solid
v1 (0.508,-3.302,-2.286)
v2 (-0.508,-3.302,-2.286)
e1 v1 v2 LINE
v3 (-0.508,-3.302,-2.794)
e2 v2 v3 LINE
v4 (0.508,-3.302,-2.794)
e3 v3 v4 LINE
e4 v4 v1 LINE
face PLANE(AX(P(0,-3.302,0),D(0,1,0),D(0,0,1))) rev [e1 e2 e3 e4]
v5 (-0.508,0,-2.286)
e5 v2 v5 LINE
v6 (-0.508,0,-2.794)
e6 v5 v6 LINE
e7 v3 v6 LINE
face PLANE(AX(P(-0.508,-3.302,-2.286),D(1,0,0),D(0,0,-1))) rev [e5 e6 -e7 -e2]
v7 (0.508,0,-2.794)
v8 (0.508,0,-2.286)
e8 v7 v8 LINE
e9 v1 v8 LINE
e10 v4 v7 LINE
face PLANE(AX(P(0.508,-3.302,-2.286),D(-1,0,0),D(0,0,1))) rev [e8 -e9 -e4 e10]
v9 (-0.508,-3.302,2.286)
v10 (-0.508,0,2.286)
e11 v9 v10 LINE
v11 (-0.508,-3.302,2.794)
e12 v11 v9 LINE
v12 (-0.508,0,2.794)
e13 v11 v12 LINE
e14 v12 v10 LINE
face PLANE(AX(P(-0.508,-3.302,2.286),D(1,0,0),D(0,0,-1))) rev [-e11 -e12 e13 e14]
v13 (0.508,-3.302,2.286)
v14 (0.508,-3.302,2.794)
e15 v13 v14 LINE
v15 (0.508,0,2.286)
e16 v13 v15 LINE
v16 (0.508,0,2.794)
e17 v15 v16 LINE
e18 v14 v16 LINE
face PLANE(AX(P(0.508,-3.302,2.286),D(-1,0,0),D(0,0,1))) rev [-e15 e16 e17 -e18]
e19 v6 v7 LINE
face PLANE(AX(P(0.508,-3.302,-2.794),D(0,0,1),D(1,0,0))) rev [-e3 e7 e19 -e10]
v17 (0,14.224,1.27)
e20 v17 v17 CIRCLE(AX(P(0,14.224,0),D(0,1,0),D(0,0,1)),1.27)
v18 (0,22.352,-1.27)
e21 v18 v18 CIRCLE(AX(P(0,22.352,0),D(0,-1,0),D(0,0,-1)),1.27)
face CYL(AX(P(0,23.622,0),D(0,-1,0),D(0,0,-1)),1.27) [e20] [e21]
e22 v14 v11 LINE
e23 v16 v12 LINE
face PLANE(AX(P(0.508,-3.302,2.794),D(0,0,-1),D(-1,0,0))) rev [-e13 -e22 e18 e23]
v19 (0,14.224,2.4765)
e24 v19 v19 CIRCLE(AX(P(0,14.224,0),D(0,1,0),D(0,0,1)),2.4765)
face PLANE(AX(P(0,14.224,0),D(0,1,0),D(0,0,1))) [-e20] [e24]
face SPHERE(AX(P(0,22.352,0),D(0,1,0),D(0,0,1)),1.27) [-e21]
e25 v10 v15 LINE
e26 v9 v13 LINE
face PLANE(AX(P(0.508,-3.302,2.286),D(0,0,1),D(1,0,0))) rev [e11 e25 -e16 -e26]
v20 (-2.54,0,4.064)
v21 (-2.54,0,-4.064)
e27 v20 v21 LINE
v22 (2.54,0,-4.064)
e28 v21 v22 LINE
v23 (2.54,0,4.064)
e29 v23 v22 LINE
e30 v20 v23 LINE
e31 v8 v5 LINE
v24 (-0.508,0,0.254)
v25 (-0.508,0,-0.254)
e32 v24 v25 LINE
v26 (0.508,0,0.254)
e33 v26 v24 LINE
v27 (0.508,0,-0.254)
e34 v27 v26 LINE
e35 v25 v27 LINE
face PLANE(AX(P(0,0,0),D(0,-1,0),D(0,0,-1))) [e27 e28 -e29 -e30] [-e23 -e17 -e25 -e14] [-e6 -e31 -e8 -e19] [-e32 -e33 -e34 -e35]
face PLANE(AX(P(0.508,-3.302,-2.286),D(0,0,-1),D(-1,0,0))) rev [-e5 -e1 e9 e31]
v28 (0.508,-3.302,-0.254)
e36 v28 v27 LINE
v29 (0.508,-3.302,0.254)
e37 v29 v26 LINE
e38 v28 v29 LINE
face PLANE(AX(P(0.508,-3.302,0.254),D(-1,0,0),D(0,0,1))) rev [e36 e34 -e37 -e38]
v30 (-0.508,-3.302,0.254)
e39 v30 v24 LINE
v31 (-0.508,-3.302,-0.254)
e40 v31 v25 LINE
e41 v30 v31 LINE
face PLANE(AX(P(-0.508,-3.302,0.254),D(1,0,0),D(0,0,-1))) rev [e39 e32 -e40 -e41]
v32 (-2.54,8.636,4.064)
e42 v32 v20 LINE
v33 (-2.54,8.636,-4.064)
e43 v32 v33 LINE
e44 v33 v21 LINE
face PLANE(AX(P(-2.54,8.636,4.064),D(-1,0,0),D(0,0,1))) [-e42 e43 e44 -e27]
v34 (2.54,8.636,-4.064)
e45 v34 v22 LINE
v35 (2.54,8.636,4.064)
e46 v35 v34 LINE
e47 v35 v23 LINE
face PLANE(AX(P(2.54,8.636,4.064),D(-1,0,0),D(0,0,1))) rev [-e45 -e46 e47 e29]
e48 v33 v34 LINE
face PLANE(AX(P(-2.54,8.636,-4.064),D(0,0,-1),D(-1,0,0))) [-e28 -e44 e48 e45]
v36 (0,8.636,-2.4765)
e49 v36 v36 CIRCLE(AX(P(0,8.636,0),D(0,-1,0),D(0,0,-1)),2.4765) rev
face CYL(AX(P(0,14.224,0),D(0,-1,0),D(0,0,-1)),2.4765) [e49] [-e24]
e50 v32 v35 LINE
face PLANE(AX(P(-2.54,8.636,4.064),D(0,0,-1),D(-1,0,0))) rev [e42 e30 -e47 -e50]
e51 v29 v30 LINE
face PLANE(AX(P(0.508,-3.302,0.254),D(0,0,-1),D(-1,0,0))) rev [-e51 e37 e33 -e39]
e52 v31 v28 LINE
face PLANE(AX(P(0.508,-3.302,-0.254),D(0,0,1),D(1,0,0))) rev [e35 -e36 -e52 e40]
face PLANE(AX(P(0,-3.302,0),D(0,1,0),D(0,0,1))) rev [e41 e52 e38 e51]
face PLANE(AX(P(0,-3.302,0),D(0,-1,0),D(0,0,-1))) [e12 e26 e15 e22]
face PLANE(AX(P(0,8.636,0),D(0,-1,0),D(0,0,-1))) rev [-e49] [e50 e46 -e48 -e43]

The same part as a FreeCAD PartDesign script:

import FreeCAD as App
import Part
import Sketcher
from FreeCAD import Vector
Q = App.Units.Quantity


def edges_at(feature, points):
    """Names of the edges that pass closest to the given points."""
    edges = feature.Shape.Edges
    near = lambda p: min(range(len(edges)), key=lambda i: edges[i].distToShape(Part.Vertex(*p))[0])
    return sorted({f"Edge{near(p) + 1}" for p in points})

doc = App.newDocument("Part")
body = doc.addObject("PartDesign::Body", "Body")

sketch1 = doc.addObject("Sketcher::SketchObject", "Sketch")
body.addObject(sketch1)
sketch1.AttachmentSupport = (doc.XZ_Plane, [""])
sketch1.MapMode = "FlatFace"
sketch1.addGeometry(Part.LineSegment(Vector(-3, -4, 0), Vector(-3, 4, 0)), False)
sketch1.addGeometry(Part.LineSegment(Vector(-3, 4, 0), Vector(3, 4, 0)), False)
sketch1.addGeometry(Part.LineSegment(Vector(3, 4, 0), Vector(3, -4, 0)), False)
sketch1.addGeometry(Part.LineSegment(Vector(3, -4, 0), Vector(-3, -4, 0)), False)
sketch1.addConstraint(Sketcher.Constraint("Coincident", 0, 2, 1, 1))
sketch1.addConstraint(Sketcher.Constraint("Coincident", 1, 2, 2, 1))
sketch1.addConstraint(Sketcher.Constraint("Coincident", 2, 2, 3, 1))
sketch1.addConstraint(Sketcher.Constraint("Coincident", 3, 2, 0, 1))
sketch1.addConstraint(Sketcher.Constraint("Vertical", 0))
sketch1.addConstraint(Sketcher.Constraint("Horizontal", 1))
sketch1.addConstraint(Sketcher.Constraint("Vertical", 2))
sketch1.addConstraint(Sketcher.Constraint("Horizontal", 3))
sketch1.addConstraint(Sketcher.Constraint("Symmetric", 0, 2, 2, 2, -1, 1))
sketch1.addConstraint(Sketcher.Constraint("DistanceX", 1, 1, 1, 2, Q("0.2 in")))
sketch1.addConstraint(Sketcher.Constraint("DistanceY", 0, 1, 0, 2, Q("0.32 in")))
pad1 = doc.addObject("PartDesign::Pad", "Pad")
body.addObject(pad1)
pad1.Profile = sketch1
pad1.Length = Q("0.34 in")
pad1.Reversed = True

sketch2 = doc.addObject("Sketcher::SketchObject", "Sketch001")
body.addObject(sketch2)
sketch2.AttachmentSupport = (doc.XZ_Plane, [""])
sketch2.MapMode = "FlatFace"
sketch2.AttachmentOffset = App.Placement(Vector(0, 0, -0.34 * 25.4), App.Rotation())
sketch2.addGeometry(Part.Circle(Vector(0, 0, 0), Vector(0, 0, 1), 2.5), False)
sketch2.addConstraint(Sketcher.Constraint("Coincident", 0, 3, -1, 1))
sketch2.addConstraint(Sketcher.Constraint("Diameter", 0, Q("0.195 in")))
pad2 = doc.addObject("PartDesign::Pad", "Pad001")
body.addObject(pad2)
pad2.Profile = sketch2
pad2.Length = Q("0.22 in")
pad2.Reversed = True

sketch3 = doc.addObject("Sketcher::SketchObject", "Sketch002")
body.addObject(sketch3)
sketch3.AttachmentSupport = (doc.XZ_Plane, [""])
sketch3.MapMode = "FlatFace"
sketch3.addGeometry(Part.LineSegment(Vector(-0.5, 0.3, 0), Vector(-0.5, -0.3, 0)), False)
sketch3.addGeometry(Part.LineSegment(Vector(-0.5, -0.3, 0), Vector(0.5, -0.3, 0)), False)
sketch3.addGeometry(Part.LineSegment(Vector(0.5, -0.3, 0), Vector(0.5, 0.3, 0)), False)
sketch3.addGeometry(Part.LineSegment(Vector(0.5, 0.3, 0), Vector(-0.5, 0.3, 0)), False)
sketch3.addGeometry(Part.LineSegment(Vector(-0.5, -2.3, 0), Vector(-0.5, -2.8, 0)), False)
sketch3.addGeometry(Part.LineSegment(Vector(-0.5, -2.8, 0), Vector(0.5, -2.8, 0)), False)
sketch3.addGeometry(Part.LineSegment(Vector(0.5, -2.8, 0), Vector(0.5, -2.3, 0)), False)
sketch3.addGeometry(Part.LineSegment(Vector(0.5, -2.3, 0), Vector(-0.5, -2.3, 0)), False)
sketch3.addGeometry(Part.LineSegment(Vector(-0.5, 2.8, 0), Vector(-0.5, 2.3, 0)), False)
sketch3.addGeometry(Part.LineSegment(Vector(-0.5, 2.3, 0), Vector(0.5, 2.3, 0)), False)
sketch3.addGeometry(Part.LineSegment(Vector(0.5, 2.3, 0), Vector(0.5, 2.8, 0)), False)
sketch3.addGeometry(Part.LineSegment(Vector(0.5, 2.8, 0), Vector(-0.5, 2.8, 0)), False)
sketch3.addConstraint(Sketcher.Constraint("Coincident", 0, 2, 1, 1))
sketch3.addConstraint(Sketcher.Constraint("Coincident", 1, 2, 2, 1))
sketch3.addConstraint(Sketcher.Constraint("Coincident", 2, 2, 3, 1))
sketch3.addConstraint(Sketcher.Constraint("Coincident", 3, 2, 0, 1))
sketch3.addConstraint(Sketcher.Constraint("Coincident", 4, 2, 5, 1))
sketch3.addConstraint(Sketcher.Constraint("Coincident", 5, 2, 6, 1))
sketch3.addConstraint(Sketcher.Constraint("Coincident", 6, 2, 7, 1))
sketch3.addConstraint(Sketcher.Constraint("Coincident", 7, 2, 4, 1))
sketch3.addConstraint(Sketcher.Constraint("Coincident", 8, 2, 9, 1))
sketch3.addConstraint(Sketcher.Constraint("Coincident", 9, 2, 10, 1))
sketch3.addConstraint(Sketcher.Constraint("Coincident", 10, 2, 11, 1))
sketch3.addConstraint(Sketcher.Constraint("Coincident", 11, 2, 8, 1))
sketch3.addConstraint(Sketcher.Constraint("Vertical", 0))
sketch3.addConstraint(Sketcher.Constraint("Horizontal", 1))
sketch3.addConstraint(Sketcher.Constraint("Vertical", 2))
sketch3.addConstraint(Sketcher.Constraint("Horizontal", 3))
sketch3.addConstraint(Sketcher.Constraint("Vertical", 4))
sketch3.addConstraint(Sketcher.Constraint("Horizontal", 5))
sketch3.addConstraint(Sketcher.Constraint("Vertical", 6))
sketch3.addConstraint(Sketcher.Constraint("Horizontal", 7))
sketch3.addConstraint(Sketcher.Constraint("Vertical", 8))
sketch3.addConstraint(Sketcher.Constraint("Horizontal", 9))
sketch3.addConstraint(Sketcher.Constraint("Vertical", 10))
sketch3.addConstraint(Sketcher.Constraint("Horizontal", 11))
sketch3.addConstraint(Sketcher.Constraint("Symmetric", 0, 2, 2, 2, -1, 1))
sketch3.addConstraint(Sketcher.Constraint("Symmetric", 6, 2, 8, 2, -1, 1))
sketch3.addConstraint(Sketcher.Constraint("Symmetric", 4, 2, 10, 2, -1, 1))
sketch3.addConstraint(Sketcher.Constraint("Vertical", 3, 2, 4, 2))
sketch3.addConstraint(Sketcher.Constraint("Vertical", 2, 2, 5, 2))
sketch3.addConstraint(Sketcher.Constraint("Equal", 2, 4))
sketch3.addConstraint(Sketcher.Constraint("DistanceX", 1, 1, 1, 2, Q("0.04 in")))
sketch3.addConstraint(Sketcher.Constraint("DistanceY", 0, 2, 0, 1, Q("0.02 in")))
sketch3.addConstraint(Sketcher.Constraint("DistanceY", 4, 2, 0, 2, Q("0.1 in")))
pad3 = doc.addObject("PartDesign::Pad", "Pad002")
body.addObject(pad3)
pad3.Profile = sketch3
pad3.Length = Q("0.13 in")

sketch4 = doc.addObject("Sketcher::SketchObject", "Sketch003")
body.addObject(sketch4)
sketch4.AttachmentSupport = (doc.XZ_Plane, [""])
sketch4.MapMode = "FlatFace"
sketch4.AttachmentOffset = App.Placement(Vector(0, 0, -0.56 * 25.4), App.Rotation())
sketch4.addGeometry(Part.Circle(Vector(0, 0, 0), Vector(0, 0, 1), 1.3), False)
sketch4.addConstraint(Sketcher.Constraint("Coincident", 0, 3, -1, 1))
sketch4.addConstraint(Sketcher.Constraint("Diameter", 0, Q("0.1 in")))
pad4 = doc.addObject("PartDesign::Pad", "Pad003")
body.addObject(pad4)
pad4.Profile = sketch4
pad4.Length = Q("0.37 in")
pad4.Reversed = True
doc.recompute()

fillet = doc.addObject("PartDesign::Fillet", "Fillet")
body.addObject(fillet)
fillet.Base = (pad4, edges_at(pad4, [(0, 23.622, -1.27)]))
fillet.Radius = Q("0.05 in")

doc.recompute()
